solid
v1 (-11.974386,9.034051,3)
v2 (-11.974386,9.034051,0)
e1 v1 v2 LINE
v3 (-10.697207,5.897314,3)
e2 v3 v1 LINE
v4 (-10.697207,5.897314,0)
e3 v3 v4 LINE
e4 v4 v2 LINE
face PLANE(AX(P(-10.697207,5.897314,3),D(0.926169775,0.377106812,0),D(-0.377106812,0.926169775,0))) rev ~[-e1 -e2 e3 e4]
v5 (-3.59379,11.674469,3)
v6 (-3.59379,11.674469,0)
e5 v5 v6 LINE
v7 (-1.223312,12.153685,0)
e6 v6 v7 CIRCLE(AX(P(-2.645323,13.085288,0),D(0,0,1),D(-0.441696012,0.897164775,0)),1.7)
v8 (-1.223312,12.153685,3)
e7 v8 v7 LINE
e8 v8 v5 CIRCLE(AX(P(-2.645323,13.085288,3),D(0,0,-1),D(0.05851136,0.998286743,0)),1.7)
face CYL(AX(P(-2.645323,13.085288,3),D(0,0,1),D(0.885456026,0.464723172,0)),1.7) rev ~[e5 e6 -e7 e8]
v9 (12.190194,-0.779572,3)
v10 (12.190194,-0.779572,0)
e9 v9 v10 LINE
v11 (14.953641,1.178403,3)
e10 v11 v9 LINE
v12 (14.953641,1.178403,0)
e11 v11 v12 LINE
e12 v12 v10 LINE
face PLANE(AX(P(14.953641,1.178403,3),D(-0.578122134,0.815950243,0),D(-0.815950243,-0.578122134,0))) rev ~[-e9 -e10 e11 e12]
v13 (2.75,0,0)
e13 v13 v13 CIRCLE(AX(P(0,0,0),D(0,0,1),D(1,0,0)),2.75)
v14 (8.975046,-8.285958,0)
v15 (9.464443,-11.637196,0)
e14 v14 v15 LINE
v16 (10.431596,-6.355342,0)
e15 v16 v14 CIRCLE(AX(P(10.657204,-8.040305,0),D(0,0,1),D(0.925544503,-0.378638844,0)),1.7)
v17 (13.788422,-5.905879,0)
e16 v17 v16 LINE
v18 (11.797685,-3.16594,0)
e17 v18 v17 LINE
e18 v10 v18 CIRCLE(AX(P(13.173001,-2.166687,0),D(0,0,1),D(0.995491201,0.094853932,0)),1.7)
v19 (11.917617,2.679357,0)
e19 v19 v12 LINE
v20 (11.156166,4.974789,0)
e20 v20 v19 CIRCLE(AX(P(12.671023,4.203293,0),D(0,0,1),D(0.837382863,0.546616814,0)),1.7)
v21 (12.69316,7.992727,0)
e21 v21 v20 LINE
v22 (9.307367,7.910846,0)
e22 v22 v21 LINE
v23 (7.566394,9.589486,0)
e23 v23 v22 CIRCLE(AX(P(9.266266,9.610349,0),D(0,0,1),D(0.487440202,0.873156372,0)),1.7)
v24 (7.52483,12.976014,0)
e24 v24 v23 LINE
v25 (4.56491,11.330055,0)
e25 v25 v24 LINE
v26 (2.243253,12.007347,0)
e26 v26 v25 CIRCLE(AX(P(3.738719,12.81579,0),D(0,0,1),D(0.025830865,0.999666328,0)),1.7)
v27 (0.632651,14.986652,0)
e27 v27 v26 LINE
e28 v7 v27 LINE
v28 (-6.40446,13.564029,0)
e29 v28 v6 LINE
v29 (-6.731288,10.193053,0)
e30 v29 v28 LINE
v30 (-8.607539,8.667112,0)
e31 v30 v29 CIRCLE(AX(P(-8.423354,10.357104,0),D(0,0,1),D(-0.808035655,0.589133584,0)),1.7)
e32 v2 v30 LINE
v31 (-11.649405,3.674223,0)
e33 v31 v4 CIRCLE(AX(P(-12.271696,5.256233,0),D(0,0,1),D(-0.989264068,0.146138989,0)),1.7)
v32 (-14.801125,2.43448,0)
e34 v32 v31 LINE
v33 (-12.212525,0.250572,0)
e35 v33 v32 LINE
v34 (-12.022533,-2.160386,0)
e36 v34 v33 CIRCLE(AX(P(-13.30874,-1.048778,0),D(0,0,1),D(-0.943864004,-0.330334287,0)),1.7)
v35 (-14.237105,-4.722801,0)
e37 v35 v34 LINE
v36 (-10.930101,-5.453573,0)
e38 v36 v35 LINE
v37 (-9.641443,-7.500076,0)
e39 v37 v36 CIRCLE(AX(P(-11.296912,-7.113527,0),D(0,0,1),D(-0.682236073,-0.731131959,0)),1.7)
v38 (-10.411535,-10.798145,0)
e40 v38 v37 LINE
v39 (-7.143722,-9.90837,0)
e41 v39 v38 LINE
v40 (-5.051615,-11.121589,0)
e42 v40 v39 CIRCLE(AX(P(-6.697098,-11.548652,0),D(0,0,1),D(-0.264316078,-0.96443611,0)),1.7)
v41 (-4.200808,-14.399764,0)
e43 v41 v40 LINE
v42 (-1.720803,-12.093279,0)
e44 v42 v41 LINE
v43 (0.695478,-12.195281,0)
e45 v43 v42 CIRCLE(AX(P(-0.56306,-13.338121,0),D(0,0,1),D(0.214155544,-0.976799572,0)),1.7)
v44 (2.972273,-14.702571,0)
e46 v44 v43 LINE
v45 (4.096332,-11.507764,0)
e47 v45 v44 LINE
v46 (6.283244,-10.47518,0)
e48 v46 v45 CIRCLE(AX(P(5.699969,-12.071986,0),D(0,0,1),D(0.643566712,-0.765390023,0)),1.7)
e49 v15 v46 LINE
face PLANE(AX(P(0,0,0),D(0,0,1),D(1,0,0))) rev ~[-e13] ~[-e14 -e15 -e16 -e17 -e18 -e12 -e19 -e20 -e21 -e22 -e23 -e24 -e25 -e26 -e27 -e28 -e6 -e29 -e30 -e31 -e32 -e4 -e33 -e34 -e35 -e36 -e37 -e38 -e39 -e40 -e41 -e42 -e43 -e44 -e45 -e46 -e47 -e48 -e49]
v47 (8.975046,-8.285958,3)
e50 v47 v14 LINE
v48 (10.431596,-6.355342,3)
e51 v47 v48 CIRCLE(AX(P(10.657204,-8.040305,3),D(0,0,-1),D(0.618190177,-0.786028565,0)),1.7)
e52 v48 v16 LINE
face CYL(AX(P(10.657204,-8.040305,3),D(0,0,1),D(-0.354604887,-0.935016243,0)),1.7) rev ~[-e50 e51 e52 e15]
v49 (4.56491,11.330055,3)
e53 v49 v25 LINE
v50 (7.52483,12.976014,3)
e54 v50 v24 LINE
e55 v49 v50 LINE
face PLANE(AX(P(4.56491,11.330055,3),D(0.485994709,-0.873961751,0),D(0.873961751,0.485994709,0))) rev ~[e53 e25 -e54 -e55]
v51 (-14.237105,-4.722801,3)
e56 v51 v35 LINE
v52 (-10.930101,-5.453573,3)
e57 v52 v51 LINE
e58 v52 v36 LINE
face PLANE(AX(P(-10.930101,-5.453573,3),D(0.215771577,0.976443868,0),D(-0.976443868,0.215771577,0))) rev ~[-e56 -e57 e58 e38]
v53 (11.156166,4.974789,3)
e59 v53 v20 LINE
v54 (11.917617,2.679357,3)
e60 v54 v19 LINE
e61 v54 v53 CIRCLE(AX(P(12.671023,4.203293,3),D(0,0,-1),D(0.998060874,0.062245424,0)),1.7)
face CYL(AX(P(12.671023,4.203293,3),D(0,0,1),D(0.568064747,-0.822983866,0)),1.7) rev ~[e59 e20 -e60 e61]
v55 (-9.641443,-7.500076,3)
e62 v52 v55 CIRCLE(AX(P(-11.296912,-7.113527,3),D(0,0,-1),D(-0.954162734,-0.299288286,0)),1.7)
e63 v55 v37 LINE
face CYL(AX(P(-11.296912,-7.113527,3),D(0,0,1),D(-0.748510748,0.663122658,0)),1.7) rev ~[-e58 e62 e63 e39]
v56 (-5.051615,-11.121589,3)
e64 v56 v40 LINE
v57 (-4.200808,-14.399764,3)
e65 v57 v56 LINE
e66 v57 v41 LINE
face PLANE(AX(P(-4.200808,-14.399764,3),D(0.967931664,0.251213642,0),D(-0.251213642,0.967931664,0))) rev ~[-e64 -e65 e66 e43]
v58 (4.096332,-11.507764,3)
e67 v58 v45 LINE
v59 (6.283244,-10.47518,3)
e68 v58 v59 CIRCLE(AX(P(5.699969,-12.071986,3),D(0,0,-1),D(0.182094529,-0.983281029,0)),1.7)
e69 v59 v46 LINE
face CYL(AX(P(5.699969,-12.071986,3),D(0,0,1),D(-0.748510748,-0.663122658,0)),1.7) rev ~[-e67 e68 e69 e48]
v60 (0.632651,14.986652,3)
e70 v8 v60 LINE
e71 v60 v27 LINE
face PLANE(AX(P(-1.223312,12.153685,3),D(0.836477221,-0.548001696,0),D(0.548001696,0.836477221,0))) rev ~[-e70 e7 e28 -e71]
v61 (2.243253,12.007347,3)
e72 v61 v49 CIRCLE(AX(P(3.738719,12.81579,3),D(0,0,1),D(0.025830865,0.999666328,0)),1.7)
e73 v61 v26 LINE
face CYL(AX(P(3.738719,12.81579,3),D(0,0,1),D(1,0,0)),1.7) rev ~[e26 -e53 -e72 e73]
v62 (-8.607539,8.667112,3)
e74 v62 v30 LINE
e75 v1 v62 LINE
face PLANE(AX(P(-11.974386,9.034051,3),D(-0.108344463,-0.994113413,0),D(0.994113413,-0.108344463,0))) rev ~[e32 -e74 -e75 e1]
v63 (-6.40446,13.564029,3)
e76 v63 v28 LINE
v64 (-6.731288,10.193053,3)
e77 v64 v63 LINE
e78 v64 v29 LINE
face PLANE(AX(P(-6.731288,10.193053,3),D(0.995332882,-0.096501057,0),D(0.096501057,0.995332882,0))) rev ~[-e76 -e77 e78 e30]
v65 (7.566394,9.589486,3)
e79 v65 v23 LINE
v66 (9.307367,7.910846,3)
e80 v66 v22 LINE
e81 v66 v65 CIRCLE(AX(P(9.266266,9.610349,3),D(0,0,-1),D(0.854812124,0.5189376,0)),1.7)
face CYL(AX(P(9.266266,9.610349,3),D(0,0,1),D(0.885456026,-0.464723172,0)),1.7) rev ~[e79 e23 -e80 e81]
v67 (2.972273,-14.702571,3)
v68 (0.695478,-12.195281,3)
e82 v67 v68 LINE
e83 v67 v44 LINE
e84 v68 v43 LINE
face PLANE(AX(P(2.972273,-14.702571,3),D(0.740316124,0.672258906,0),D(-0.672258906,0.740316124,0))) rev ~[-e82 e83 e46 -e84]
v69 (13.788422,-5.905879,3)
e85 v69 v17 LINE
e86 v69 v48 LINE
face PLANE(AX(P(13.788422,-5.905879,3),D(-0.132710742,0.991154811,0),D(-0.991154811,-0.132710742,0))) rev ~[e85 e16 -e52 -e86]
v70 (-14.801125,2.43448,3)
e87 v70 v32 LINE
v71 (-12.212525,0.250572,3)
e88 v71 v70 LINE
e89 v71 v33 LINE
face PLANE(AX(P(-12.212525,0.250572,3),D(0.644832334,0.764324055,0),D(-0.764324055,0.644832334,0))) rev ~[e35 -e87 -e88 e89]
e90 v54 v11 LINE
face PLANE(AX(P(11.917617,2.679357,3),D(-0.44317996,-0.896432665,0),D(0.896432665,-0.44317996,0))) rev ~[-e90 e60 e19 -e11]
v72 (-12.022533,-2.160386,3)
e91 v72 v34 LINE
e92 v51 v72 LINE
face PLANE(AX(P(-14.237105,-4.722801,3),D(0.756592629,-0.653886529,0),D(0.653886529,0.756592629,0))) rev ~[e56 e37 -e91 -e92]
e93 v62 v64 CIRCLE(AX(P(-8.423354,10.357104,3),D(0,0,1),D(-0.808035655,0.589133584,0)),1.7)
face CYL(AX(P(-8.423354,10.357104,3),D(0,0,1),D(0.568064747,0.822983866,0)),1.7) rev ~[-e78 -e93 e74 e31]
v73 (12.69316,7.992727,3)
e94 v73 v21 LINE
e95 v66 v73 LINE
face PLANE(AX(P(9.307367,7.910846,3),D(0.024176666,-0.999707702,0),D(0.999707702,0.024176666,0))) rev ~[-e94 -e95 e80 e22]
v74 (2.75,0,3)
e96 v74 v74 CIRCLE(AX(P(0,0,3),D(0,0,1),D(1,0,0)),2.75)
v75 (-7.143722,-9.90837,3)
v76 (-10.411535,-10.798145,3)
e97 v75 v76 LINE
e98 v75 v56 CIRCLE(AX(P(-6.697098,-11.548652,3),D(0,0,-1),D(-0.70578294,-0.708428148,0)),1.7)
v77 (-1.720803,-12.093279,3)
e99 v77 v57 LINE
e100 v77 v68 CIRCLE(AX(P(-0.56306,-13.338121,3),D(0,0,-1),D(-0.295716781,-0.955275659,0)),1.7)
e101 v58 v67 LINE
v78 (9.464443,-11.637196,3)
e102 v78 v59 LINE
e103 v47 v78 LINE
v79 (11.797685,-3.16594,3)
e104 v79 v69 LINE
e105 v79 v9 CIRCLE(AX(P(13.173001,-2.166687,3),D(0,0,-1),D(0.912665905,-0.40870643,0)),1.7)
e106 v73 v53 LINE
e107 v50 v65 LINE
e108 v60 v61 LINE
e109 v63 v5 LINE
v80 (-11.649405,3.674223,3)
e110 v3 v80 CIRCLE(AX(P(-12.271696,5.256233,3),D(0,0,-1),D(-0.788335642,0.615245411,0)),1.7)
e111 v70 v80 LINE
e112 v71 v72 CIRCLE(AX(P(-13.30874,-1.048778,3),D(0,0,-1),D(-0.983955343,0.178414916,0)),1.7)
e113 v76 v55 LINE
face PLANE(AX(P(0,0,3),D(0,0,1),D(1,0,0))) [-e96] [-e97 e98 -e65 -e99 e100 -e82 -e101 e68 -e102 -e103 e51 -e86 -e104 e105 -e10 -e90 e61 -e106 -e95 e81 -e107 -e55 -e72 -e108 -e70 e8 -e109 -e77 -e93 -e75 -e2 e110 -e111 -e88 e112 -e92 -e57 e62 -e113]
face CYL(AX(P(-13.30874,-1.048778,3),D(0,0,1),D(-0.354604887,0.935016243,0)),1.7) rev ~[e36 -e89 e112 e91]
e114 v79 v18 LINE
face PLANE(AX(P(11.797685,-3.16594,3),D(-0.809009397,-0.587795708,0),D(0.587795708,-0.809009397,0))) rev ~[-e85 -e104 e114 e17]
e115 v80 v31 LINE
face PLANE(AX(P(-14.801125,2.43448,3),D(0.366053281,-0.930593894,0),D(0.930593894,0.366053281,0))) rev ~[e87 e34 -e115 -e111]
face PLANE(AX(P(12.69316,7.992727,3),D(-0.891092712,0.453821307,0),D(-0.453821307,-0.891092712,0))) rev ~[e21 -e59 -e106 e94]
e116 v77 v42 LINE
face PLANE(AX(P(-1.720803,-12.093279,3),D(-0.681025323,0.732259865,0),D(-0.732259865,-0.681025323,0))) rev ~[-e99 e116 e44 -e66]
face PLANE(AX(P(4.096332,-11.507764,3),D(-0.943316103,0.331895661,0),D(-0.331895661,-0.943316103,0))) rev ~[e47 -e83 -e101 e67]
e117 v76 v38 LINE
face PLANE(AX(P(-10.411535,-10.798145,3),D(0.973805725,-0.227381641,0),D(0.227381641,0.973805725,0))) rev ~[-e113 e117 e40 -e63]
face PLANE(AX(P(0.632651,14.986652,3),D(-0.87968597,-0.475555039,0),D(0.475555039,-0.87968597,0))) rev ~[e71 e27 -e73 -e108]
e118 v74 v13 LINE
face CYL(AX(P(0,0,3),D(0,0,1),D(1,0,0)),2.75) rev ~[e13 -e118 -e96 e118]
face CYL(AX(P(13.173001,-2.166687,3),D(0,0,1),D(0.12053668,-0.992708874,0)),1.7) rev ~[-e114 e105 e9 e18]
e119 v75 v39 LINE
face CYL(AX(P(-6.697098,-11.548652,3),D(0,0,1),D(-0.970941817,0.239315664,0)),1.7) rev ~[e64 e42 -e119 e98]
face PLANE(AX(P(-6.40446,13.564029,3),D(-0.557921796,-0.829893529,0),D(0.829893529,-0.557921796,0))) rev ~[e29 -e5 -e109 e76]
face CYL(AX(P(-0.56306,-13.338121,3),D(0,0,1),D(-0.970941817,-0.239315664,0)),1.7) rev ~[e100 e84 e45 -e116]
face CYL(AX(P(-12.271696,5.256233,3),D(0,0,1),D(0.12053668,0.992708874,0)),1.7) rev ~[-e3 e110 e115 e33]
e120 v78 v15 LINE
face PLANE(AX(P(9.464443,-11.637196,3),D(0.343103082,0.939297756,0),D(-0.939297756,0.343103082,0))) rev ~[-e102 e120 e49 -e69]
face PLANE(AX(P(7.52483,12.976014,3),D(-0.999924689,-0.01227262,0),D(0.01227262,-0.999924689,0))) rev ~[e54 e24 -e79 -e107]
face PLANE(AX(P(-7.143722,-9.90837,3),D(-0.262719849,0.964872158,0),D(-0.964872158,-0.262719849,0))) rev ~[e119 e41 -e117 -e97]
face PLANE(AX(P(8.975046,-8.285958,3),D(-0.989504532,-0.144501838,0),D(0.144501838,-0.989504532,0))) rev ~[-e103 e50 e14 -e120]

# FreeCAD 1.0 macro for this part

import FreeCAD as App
import Part
import Sketcher
from FreeCAD import Vector


def add_polygon(sketch, points):
    """Adds a closed chain of lines whose ends are joined by coincident constraints."""
    first, n = sketch.GeometryCount, len(points)
    for a, b in zip(points, points[1:] + points[:1]):
        sketch.addGeometry(Part.LineSegment(App.Vector(*a, 0), App.Vector(*b, 0)), False)
    for i in range(n):
        sketch.addConstraint(Sketcher.Constraint("Coincident", first + i, 2, first + (i + 1) % n, 1))

doc = App.newDocument("Part")
body = doc.addObject("PartDesign::Body", "Body")

# Sketch on XY plane
sketch1 = body.newObject("Sketcher::SketchObject", "Sketch")
sketch1.AttachmentSupport = (doc.getObject("XY_Plane"), [""])
sketch1.MapMode = "FlatFace"
sketch1.addGeometry(Part.Circle(Vector(0, 0, 0), Vector(0, 0, 1), 15), False)
sketch1.addConstraint(Sketcher.Constraint("Coincident", 0, 3, -1, 1))
sketch1.addConstraint(Sketcher.Constraint("Diameter", 0, 30.0))
pad1 = body.newObject("PartDesign::Pad", "Pad")
pad1.Profile = sketch1
pad1.Length = 3

# Sketch on XY plane
sketch2 = body.newObject("Sketcher::SketchObject", "Sketch001")
sketch2.AttachmentSupport = (doc.getObject("XY_Plane"), [""])
sketch2.MapMode = "FlatFace"
sketch2.AttachmentOffset = App.Placement(Vector(0, 0, 3), App.Rotation())
sketch2.addGeometry(Part.Circle(Vector(0, 0, 0), Vector(0, 0, 1), 2.75), False)
sketch2.addConstraint(Sketcher.Constraint("Coincident", 0, 3, -1, 1))
sketch2.addConstraint(Sketcher.Constraint("Diameter", 0, 5.5))
pocket1 = body.newObject("PartDesign::Pocket", "Pocket")
pocket1.Profile = sketch2
pocket1.Length = 11

# Sketch on XY plane
sketch3 = body.newObject("Sketcher::SketchObject", "Sketch002")
sketch3.AttachmentSupport = (doc.getObject("XY_Plane"), [""])
sketch3.MapMode = "FlatFace"
sketch3.AttachmentOffset = App.Placement(Vector(0, 0, 3), App.Rotation())
sketch3.addGeometry(Part.Circle(Vector(3.738719, 12.81579, 0), Vector(0, 0, 1), 1.7), False)
sketch3.addConstraint(Sketcher.Constraint("Diameter", 0, 3.4))
sketch3.addConstraint(Sketcher.Constraint("DistanceX", -1, 1, 0, 3, 3.738719))
sketch3.addConstraint(Sketcher.Constraint("DistanceY", -1, 1, 0, 3, 12.81579))
pocket2 = body.newObject("PartDesign::Pocket", "Pocket001")
pocket2.Profile = sketch3
pocket2.Length = 10
doc.recompute()

polarpattern = body.newObject("PartDesign::PolarPattern", "PolarPattern")
polarpattern.Originals = [pocket2]
polarpattern.Axis = (doc.getObject("Z_Axis"), [""])
polarpattern.Angle = 360
polarpattern.Occurrences = 13
body.Tip = polarpattern

# Sketch on XY plane
sketch4 = body.newObject("Sketcher::SketchObject", "Sketch003")
sketch4.AttachmentSupport = (doc.getObject("XY_Plane"), [""])
sketch4.MapMode = "FlatFace"
sketch4.AttachmentOffset = App.Placement(Vector(0, 0, 3), App.Rotation())
add_polygon(sketch4, [(-1.223312, 12.153685), (0.632651, 14.986652), (2.243253, 12.007347), (4.816692, 13.980884), (-0.349445, 17.339446), (-3.866614, 14.072309)])  # lines 0-5
sketch4.addConstraint(Sketcher.Constraint("Equal", 0, 1))
sketch4.addConstraint(Sketcher.Constraint("DistanceX", 0, 2, 1, 2, 1.610602))
sketch4.addConstraint(Sketcher.Constraint("DistanceY", 1, 2, 3, 2, 5.332099))
sketch4.addConstraint(Sketcher.Constraint("DistanceX", 4, 2, 5, 2, 2.643302))
sketch4.addConstraint(Sketcher.Constraint("DistanceY", 5, 2, 2, 2, 1.827198))
sketch4.addConstraint(Sketcher.Constraint("Distance", 2, 3.24306))
sketch4.addConstraint(Sketcher.Constraint("Distance", 3, 6.161892))
sketch4.addConstraint(Sketcher.Constraint("DistanceX", -1, 1, 0, 2, 0.632651))
sketch4.addConstraint(Sketcher.Constraint("DistanceY", -1, 1, 4, 2, 14.072309))
sketch4.addConstraint(Sketcher.Constraint("DistanceX", 5, 2, -1, 1, 1.223312))
sketch4.addConstraint(Sketcher.Constraint("DistanceX", 1, 2, 2, 2, 2.573439))
sketch4.addConstraint(Sketcher.Constraint("Distance", 4, 4.800485))
pocket3 = body.newObject("PartDesign::Pocket", "Pocket002")
pocket3.Profile = sketch4
pocket3.Length = 10
doc.recompute()

polarpattern2 = body.newObject("PartDesign::PolarPattern", "PolarPattern001")
polarpattern2.Originals = [pocket3]
polarpattern2.Axis = (doc.getObject("Z_Axis"), [""])
polarpattern2.Angle = 360
polarpattern2.Occurrences = 13
body.Tip = polarpattern2

doc.recompute()
